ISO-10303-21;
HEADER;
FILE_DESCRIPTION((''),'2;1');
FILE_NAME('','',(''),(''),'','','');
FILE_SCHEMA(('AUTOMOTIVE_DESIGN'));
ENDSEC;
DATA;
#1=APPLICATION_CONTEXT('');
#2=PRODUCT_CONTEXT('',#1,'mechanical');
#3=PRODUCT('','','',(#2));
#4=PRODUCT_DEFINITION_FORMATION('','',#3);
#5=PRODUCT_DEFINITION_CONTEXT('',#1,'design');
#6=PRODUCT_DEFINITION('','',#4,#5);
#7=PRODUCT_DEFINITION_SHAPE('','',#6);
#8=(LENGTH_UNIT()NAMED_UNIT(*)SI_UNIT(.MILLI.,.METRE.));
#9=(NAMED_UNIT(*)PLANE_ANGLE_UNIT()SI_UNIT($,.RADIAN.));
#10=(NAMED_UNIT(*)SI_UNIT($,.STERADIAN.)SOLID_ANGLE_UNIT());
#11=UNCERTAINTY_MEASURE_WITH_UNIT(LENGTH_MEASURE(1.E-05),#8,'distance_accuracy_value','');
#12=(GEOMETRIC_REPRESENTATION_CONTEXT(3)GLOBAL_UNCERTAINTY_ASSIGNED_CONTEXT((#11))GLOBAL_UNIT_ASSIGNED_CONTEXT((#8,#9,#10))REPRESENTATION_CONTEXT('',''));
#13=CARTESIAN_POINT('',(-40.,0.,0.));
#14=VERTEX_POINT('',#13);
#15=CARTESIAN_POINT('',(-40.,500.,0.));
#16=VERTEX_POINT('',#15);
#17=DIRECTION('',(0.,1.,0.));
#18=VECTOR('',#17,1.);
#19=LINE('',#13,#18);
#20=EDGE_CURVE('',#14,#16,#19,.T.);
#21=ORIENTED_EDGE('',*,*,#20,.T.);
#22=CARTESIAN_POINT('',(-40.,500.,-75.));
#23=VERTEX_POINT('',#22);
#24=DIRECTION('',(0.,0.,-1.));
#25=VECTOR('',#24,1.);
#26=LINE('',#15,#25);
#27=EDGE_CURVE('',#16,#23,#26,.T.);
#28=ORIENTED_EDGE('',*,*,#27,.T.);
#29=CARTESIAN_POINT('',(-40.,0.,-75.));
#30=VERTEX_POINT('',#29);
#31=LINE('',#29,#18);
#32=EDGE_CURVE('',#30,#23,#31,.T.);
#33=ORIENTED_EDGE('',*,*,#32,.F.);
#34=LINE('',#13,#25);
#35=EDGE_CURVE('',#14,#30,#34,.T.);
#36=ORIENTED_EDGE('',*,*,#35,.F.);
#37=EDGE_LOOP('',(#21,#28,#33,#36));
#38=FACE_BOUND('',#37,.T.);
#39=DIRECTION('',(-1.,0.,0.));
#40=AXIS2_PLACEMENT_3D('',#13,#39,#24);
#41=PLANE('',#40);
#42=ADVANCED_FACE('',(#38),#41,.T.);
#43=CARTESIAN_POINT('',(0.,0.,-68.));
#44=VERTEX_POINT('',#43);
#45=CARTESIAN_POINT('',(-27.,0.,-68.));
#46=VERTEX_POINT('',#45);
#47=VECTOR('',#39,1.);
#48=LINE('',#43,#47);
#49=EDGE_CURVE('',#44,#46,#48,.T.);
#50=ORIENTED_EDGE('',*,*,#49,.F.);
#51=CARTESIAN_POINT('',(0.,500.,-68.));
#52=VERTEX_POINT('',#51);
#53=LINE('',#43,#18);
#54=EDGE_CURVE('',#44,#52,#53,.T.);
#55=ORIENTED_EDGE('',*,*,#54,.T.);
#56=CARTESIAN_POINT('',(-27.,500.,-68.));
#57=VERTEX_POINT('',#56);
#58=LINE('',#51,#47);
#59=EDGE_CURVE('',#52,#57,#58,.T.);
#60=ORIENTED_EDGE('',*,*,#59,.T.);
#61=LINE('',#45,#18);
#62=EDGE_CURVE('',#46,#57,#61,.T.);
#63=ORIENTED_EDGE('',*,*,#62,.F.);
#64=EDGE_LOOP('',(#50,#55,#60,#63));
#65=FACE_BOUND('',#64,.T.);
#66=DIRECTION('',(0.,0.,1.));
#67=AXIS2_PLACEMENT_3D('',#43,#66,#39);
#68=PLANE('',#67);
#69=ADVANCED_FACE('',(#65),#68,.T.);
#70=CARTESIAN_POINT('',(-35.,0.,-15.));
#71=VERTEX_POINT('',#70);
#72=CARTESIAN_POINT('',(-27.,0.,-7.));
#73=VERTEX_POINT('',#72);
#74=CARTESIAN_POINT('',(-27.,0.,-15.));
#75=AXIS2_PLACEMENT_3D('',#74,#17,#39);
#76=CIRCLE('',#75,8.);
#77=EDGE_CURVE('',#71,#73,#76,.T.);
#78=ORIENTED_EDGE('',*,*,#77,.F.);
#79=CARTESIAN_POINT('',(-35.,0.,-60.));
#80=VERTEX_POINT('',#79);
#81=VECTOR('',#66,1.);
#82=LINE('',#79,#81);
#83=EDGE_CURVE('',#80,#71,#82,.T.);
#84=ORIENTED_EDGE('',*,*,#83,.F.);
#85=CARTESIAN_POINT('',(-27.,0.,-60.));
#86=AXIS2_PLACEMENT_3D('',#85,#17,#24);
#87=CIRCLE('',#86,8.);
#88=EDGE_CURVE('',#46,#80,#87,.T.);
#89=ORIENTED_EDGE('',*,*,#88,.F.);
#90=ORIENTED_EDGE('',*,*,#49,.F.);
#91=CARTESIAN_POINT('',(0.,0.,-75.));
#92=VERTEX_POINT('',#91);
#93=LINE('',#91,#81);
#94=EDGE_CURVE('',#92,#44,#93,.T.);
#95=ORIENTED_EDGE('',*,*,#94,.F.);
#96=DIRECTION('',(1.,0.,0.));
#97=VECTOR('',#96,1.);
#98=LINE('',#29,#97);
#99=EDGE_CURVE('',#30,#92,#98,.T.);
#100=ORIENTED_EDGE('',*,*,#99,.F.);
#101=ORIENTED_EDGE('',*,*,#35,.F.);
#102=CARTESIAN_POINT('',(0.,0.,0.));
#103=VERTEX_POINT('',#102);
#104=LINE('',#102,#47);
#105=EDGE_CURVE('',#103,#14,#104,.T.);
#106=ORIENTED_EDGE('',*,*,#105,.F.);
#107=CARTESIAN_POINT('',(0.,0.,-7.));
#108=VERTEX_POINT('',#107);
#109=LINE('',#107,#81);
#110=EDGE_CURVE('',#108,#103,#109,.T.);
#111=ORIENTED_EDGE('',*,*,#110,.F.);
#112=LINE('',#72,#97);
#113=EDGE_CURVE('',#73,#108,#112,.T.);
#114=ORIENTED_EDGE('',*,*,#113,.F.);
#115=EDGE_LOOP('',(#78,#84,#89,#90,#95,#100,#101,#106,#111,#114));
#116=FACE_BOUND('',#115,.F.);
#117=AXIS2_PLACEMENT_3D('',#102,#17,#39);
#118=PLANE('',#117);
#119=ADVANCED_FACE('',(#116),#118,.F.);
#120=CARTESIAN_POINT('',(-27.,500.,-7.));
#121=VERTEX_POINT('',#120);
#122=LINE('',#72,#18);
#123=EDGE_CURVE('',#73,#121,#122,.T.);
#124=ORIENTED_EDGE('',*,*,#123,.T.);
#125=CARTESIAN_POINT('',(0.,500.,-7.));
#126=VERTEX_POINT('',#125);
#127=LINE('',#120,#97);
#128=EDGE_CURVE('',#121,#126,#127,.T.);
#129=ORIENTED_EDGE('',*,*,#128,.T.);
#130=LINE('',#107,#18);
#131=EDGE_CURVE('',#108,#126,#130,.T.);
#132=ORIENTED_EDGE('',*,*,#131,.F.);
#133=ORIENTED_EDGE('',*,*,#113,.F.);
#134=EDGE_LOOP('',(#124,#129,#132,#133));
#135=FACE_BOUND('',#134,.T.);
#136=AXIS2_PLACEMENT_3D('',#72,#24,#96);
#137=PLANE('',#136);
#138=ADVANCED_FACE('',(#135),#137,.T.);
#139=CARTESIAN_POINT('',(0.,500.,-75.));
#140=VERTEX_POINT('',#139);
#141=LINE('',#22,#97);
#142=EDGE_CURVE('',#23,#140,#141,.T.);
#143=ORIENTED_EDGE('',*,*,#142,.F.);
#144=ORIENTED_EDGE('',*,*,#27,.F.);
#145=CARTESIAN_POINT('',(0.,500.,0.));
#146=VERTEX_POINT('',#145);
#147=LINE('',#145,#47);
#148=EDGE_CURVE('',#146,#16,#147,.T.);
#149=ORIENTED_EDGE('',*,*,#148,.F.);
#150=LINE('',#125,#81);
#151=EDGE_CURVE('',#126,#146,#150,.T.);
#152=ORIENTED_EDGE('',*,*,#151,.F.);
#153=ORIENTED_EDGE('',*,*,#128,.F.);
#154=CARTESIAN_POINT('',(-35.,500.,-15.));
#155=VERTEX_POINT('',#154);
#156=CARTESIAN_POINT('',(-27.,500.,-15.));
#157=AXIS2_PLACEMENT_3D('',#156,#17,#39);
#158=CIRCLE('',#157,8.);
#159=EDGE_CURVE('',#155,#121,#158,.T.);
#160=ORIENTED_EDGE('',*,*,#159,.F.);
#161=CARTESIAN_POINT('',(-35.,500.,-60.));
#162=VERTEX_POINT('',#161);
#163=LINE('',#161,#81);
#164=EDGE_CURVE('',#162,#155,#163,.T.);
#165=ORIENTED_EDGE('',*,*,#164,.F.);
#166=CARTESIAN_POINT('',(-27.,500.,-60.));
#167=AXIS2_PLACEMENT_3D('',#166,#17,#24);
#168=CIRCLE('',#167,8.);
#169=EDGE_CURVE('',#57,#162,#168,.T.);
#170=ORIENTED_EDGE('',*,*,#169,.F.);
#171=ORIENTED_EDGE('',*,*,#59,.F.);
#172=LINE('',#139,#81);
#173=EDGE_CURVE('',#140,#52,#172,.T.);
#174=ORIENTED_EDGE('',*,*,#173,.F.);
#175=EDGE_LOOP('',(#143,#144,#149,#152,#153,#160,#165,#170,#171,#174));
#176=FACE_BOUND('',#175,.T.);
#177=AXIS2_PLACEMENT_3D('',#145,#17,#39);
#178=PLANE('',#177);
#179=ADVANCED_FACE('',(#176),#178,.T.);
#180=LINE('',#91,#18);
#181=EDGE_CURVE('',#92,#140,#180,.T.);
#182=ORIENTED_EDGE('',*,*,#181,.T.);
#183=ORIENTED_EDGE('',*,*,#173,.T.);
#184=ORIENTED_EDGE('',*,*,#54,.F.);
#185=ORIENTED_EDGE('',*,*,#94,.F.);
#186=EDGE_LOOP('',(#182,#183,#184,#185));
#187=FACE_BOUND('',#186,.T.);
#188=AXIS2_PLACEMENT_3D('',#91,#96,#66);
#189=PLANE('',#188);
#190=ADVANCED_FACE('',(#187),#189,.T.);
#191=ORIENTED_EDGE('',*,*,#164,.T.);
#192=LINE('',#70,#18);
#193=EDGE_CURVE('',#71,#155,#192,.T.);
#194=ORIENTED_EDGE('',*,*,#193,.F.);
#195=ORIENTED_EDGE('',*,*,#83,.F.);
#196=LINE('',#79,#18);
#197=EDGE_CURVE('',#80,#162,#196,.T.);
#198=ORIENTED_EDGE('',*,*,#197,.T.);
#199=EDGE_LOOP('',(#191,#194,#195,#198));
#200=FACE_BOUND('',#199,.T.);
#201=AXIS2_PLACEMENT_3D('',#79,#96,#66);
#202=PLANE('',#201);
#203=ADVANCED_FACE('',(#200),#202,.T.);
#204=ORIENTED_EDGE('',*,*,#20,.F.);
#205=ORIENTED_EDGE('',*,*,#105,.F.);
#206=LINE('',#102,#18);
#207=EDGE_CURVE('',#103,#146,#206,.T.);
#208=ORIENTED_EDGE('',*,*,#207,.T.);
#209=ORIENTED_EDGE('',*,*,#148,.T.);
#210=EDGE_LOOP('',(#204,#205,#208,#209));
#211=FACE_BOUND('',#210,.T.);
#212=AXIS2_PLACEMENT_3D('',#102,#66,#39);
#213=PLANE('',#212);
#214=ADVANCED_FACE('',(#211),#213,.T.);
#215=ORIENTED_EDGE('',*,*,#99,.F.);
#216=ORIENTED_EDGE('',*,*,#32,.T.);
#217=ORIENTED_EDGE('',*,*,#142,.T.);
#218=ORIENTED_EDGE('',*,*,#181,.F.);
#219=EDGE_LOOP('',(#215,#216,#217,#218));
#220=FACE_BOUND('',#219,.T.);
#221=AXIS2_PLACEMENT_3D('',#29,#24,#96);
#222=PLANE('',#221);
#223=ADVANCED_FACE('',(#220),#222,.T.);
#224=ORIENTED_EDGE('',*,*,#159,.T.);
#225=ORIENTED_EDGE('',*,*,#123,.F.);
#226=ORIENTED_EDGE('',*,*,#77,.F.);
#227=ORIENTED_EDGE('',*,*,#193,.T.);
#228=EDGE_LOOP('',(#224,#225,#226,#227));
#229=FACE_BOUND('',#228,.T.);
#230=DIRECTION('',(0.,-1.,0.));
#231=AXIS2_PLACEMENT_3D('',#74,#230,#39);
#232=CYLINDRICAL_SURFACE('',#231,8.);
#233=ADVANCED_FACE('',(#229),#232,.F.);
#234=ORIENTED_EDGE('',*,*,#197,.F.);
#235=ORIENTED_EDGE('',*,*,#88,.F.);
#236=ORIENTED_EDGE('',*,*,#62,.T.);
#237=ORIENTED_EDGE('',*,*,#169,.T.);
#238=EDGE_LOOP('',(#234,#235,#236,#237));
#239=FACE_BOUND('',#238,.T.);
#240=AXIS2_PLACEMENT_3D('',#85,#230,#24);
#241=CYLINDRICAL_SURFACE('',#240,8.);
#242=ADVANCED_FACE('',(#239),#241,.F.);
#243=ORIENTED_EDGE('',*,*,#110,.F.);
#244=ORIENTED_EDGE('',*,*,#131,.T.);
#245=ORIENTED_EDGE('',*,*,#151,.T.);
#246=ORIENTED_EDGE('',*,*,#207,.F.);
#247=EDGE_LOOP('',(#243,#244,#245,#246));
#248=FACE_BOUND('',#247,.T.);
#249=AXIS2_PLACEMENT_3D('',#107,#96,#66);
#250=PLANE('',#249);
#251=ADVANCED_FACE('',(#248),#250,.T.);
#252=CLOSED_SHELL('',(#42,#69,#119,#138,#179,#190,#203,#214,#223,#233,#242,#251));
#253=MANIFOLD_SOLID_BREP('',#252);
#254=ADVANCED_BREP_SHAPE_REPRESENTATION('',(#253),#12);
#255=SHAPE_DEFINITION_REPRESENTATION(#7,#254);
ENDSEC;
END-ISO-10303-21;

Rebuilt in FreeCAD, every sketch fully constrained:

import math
import FreeCAD as App
import Part
import Sketcher

V = App.Vector

doc = App.newDocument("Part")
body = doc.addObject("PartDesign::Body", "Body")

# Sketch on XZ plane
sketch1 = body.newObject("Sketcher::SketchObject", "Sketch")
sketch1.AttachmentSupport = (doc.getObject("XZ_Plane"), [""])
sketch1.MapMode = "FlatFace"
sketch1.addGeometry([
    Part.LineSegment(V(-40, 0, 0), V(0, 0, 0)),  # 0
    Part.LineSegment(V(0, 0, 0), V(0, -7, 0)),  # 1
    Part.LineSegment(V(0, -7, 0), V(-27, -7, 0)),  # 2
    Part.ArcOfCircle(Part.Circle(V(-27, -15, 0), V(0, 0, 1), 8), math.radians(90), math.radians(180)),  # 3
    Part.LineSegment(V(-35, -15, 0), V(-35, -60, 0)),  # 4
    Part.ArcOfCircle(Part.Circle(V(-27, -60, 0), V(0, 0, 1), 8), math.radians(180), math.radians(270)),  # 5
    Part.LineSegment(V(-27, -68, 0), V(0, -68, 0)),  # 6
    Part.LineSegment(V(0, -68, 0), V(0, -75, 0)),  # 7
    Part.LineSegment(V(0, -75, 0), V(-40, -75, 0)),  # 8
    Part.LineSegment(V(-40, -75, 0), V(-40, 0, 0)),  # 9
], False)
sketch1.addConstraint([
    Sketcher.Constraint("Coincident", 0, 2, 1, 1),
    Sketcher.Constraint("Coincident", 1, 2, 2, 1),
    Sketcher.Constraint("Tangent", 2, 2, 3, 1),
    Sketcher.Constraint("Tangent", 3, 2, 4, 1),
    Sketcher.Constraint("Tangent", 4, 2, 5, 1),
    Sketcher.Constraint("Tangent", 5, 2, 6, 1),
    Sketcher.Constraint("Coincident", 6, 2, 7, 1),
    Sketcher.Constraint("Coincident", 7, 2, 8, 1),
    Sketcher.Constraint("Coincident", 8, 2, 9, 1),
    Sketcher.Constraint("Coincident", 9, 2, 0, 1),
    Sketcher.Constraint("Horizontal", 0),
    Sketcher.Constraint("Vertical", 1),
    Sketcher.Constraint("Horizontal", 2),
    Sketcher.Constraint("Vertical", 4),
    Sketcher.Constraint("Horizontal", 6),
    Sketcher.Constraint("Vertical", 7),
    Sketcher.Constraint("Horizontal", 8),
    Sketcher.Constraint("Vertical", 9),
    Sketcher.Constraint("Coincident", 0, 2, -1, 1),
    Sketcher.Constraint("Equal", 3, 5),
    Sketcher.Constraint("PointOnObject", 6, 2, -2),
    Sketcher.Constraint("Equal", 1, 7),
    Sketcher.Constraint("Radius", 3, 8.0),
    Sketcher.Constraint("DistanceX", 0, 1, 0, 2, 40.0),
    Sketcher.Constraint("DistanceY", 1, 2, 1, 1, 7.0),
    Sketcher.Constraint("DistanceY", 9, 1, 9, 2, 75.0),
    Sketcher.Constraint("DistanceX", 3, 2, -1, 1, 35.0),
])
pad1 = body.newObject("PartDesign::Pad", "Pad")
pad1.Profile = sketch1
pad1.Length = 500
pad1.Reversed = True

doc.recompute()
